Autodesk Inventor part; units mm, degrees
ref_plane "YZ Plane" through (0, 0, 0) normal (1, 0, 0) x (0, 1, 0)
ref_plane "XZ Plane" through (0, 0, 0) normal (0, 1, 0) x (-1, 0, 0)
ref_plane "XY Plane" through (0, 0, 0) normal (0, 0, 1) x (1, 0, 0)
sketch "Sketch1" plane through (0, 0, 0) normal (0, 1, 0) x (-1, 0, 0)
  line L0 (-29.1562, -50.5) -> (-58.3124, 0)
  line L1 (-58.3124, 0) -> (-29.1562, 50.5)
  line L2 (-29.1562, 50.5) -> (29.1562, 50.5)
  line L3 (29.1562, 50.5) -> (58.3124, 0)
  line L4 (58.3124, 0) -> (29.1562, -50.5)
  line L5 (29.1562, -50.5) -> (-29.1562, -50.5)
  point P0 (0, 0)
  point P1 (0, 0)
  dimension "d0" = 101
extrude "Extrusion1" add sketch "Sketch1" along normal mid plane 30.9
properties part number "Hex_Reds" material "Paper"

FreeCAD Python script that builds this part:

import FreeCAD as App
import Part
import Sketcher
from FreeCAD import Vector
Q = App.Units.Quantity


def add_polygon(sketch, points):
    """Adds a closed chain of lines whose ends are joined by coincident constraints."""
    first, n = sketch.GeometryCount, len(points)
    for a, b in zip(points, points[1:] + points[:1]):
        sketch.addGeometry(Part.LineSegment(App.Vector(*a, 0), App.Vector(*b, 0)), False)
    for i in range(n):
        sketch.addConstraint(Sketcher.Constraint("Coincident", first + i, 2, first + (i + 1) % n, 1))

doc = App.newDocument("Part")
body = doc.addObject("PartDesign::Body", "Body")

# Sketch on XZ plane
sketch1 = doc.addObject("Sketcher::SketchObject", "Sketch")
body.addObject(sketch1)
sketch1.AttachmentSupport = (doc.XZ_Plane, [""])
sketch1.MapMode = "FlatFace"
add_polygon(sketch1, [(58, 0), (29, -50), (-29, -50), (-58, 0), (-29, 50), (29, 50)])  # lines 0-5
sketch1.addConstraint(Sketcher.Constraint("Horizontal", 1))
sketch1.addConstraint(Sketcher.Constraint("Horizontal", 4))
sketch1.addConstraint(Sketcher.Constraint("Symmetric", 0, 2, 3, 2, -1, 1))
sketch1.addConstraint(Sketcher.Constraint("Symmetric", 2, 2, 5, 2, -1, 1))
sketch1.addConstraint(Sketcher.Constraint("PointOnObject", 2, 2, -1))
sketch1.addConstraint(Sketcher.Constraint("Parallel", 2, 5))
sketch1.addConstraint(Sketcher.Constraint("Vertical", 1, 2, 3, 2))
sketch1.addConstraint(Sketcher.Constraint("DistanceY", 1, 2, 3, 2, Q("101 mm")))
sketch1.addConstraint(Sketcher.Constraint("Angle", 0, Q("-120 deg")))
sketch1.addConstraint(Sketcher.Constraint("DistanceX", 1, 2, 1, 1, Q("58.3124 mm")))
pad1 = doc.addObject("PartDesign::Pad", "Pad")
body.addObject(pad1)
pad1.Profile = sketch1
pad1.Length = 30.9
pad1.Midplane = True

doc.recompute()
